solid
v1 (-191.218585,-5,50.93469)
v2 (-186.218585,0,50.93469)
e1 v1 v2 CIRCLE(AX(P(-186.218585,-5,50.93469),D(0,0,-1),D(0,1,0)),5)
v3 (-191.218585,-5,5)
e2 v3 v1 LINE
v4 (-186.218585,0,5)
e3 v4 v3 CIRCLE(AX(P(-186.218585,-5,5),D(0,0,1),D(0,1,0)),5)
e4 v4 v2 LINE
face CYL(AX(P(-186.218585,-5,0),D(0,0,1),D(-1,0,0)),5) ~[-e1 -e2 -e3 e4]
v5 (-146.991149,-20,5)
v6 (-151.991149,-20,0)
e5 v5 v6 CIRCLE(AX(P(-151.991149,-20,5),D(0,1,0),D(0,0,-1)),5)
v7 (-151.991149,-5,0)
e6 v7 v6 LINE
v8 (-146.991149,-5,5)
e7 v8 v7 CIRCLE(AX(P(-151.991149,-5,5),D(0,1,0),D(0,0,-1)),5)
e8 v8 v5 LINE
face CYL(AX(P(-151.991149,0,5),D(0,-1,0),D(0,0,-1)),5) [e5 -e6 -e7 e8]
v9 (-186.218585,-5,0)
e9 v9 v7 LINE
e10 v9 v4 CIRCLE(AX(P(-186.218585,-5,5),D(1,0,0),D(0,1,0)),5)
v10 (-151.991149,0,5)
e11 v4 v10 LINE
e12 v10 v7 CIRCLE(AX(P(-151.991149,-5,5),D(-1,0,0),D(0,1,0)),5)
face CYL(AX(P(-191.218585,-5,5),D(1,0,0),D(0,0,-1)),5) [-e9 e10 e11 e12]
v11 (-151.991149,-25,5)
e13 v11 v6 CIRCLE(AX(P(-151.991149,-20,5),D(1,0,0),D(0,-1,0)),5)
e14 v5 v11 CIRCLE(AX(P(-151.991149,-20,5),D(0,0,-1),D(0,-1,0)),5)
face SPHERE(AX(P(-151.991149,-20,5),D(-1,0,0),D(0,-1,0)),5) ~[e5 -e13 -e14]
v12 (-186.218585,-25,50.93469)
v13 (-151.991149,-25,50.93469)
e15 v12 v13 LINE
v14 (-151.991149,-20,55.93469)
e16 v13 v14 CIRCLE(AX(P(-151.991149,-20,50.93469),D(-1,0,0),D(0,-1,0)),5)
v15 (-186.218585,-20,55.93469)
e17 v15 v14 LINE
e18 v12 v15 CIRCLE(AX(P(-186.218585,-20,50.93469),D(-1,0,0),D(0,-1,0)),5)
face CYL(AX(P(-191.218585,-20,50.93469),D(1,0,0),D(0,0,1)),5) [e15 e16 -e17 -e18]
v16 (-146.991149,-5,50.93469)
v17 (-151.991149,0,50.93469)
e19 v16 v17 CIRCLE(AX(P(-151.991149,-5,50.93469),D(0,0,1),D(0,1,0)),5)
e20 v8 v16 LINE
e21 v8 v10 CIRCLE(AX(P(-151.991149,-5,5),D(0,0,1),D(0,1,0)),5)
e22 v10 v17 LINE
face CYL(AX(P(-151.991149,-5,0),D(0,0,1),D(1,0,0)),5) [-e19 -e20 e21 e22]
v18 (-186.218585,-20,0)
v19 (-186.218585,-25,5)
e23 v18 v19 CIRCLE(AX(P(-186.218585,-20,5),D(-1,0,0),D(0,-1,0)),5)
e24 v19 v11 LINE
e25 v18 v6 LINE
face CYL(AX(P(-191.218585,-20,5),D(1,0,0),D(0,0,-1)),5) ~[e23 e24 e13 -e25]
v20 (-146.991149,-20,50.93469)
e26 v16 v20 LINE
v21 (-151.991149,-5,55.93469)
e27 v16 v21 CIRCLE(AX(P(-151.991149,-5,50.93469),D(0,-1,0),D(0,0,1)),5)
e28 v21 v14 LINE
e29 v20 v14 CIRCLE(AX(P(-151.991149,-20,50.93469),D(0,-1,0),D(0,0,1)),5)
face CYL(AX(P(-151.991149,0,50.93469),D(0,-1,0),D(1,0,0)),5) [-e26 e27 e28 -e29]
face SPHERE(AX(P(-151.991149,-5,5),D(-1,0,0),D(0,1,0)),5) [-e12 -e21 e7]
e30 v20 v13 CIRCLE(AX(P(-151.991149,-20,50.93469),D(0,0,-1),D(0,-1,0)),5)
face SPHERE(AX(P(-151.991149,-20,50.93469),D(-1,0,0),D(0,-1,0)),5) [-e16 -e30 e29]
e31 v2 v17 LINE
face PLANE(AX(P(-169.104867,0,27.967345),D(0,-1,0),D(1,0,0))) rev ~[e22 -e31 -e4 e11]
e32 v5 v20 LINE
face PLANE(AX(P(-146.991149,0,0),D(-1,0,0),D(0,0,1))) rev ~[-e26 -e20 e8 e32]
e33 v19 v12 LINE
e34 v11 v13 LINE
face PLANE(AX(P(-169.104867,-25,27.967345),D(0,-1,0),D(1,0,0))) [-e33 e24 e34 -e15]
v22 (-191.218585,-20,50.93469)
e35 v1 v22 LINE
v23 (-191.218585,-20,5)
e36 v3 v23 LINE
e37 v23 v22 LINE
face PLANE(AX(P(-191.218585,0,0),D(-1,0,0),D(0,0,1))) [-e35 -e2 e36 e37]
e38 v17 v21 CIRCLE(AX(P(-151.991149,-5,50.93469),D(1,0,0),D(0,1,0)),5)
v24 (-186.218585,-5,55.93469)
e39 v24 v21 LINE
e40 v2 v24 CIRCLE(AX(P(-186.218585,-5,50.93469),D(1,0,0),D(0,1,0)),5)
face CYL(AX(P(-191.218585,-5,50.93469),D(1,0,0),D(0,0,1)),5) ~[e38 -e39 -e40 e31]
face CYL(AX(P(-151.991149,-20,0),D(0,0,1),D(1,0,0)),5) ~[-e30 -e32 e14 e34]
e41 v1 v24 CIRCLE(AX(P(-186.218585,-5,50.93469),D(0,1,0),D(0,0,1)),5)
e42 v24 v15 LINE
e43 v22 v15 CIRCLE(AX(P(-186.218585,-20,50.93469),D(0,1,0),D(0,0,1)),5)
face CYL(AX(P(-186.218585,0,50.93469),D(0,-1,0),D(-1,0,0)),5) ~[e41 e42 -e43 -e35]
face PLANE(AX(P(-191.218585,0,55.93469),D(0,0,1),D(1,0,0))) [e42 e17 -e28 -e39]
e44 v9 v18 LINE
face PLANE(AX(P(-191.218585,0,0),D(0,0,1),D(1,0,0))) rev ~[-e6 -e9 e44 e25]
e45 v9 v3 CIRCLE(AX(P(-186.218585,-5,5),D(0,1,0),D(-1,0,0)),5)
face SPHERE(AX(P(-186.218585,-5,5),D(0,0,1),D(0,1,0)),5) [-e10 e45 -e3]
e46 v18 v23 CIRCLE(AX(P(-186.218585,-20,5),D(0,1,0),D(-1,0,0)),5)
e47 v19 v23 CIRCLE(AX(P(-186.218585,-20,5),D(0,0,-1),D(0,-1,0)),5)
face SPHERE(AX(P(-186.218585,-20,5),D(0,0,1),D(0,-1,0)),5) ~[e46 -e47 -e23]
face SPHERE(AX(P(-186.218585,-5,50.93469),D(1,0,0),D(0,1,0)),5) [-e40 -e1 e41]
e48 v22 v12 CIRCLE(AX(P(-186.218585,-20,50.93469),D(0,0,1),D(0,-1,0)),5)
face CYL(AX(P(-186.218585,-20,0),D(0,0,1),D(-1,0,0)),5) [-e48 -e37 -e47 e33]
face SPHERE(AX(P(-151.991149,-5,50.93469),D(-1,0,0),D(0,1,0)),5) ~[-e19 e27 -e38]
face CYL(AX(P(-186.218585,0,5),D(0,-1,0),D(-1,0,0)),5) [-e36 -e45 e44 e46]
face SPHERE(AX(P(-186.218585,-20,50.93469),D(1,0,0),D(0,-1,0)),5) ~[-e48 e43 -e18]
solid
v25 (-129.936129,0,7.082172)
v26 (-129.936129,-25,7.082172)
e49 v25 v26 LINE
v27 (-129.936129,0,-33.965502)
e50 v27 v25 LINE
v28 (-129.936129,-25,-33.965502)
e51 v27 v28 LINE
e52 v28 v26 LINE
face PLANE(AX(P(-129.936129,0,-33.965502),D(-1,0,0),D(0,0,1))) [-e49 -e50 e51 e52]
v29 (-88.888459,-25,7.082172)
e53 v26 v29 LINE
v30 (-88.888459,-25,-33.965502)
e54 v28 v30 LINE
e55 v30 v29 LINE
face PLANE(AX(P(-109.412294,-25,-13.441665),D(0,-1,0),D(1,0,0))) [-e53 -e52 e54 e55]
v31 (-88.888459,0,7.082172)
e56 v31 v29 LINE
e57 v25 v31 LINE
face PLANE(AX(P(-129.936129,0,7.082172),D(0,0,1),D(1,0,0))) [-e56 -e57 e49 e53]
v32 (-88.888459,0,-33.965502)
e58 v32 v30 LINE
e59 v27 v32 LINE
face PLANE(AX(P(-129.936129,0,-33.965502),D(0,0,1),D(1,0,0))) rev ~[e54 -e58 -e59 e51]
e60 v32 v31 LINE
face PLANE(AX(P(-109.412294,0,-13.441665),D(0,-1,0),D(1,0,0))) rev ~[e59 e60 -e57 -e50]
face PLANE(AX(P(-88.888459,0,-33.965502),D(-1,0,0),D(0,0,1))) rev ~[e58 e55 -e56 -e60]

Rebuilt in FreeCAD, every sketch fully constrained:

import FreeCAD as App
import Part
import Sketcher
from FreeCAD import Vector


def edges_at(feature, points):
    """Names of the edges that pass closest to the given points."""
    edges = feature.Shape.Edges
    near = lambda p: min(range(len(edges)), key=lambda i: edges[i].distToShape(Part.Vertex(*p))[0])
    return sorted({f"Edge{near(p) + 1}" for p in points})

doc = App.newDocument("Part")
params = doc.addObject("Spreadsheet::Sheet", "Params")
for row, (alias, value) in enumerate([
    ("pad1_length", "25 mm"),
    ("fillet_radius", "5 mm"),
], start=1):
    params.set(f"A{row}", alias)
    params.set(f"B{row}", "=" + value)
    params.setAlias(f"B{row}", alias)

body = doc.addObject("PartDesign::Body", "Body")
body.AllowCompound = True

# Sketch on XZ plane
sketch1 = doc.addObject("Sketcher::SketchObject", "Sketch")
body.addObject(sketch1)
sketch1.AttachmentSupport = (doc.XZ_Plane, [""])
sketch1.MapMode = "FlatFace"
sketch1.addGeometry(Part.LineSegment(Vector(-191, 56, 0), Vector(-191, 0, 0)), False)
sketch1.addGeometry(Part.LineSegment(Vector(-191, 0, 0), Vector(-147, 0, 0)), False)
sketch1.addGeometry(Part.LineSegment(Vector(-147, 0, 0), Vector(-147, 56, 0)), False)
sketch1.addGeometry(Part.LineSegment(Vector(-147, 56, 0), Vector(-191, 56, 0)), False)
sketch1.addGeometry(Part.LineSegment(Vector(-130, 7, 0), Vector(-130, -34, 0)), False)
sketch1.addGeometry(Part.LineSegment(Vector(-130, -34, 0), Vector(-89, -34, 0)), False)
sketch1.addGeometry(Part.LineSegment(Vector(-89, -34, 0), Vector(-89, 7, 0)), False)
sketch1.addGeometry(Part.LineSegment(Vector(-89, 7, 0), Vector(-130, 7, 0)), False)
sketch1.addConstraint(Sketcher.Constraint("Coincident", 0, 2, 1, 1))
sketch1.addConstraint(Sketcher.Constraint("Coincident", 1, 2, 2, 1))
sketch1.addConstraint(Sketcher.Constraint("Coincident", 2, 2, 3, 1))
sketch1.addConstraint(Sketcher.Constraint("Coincident", 3, 2, 0, 1))
sketch1.addConstraint(Sketcher.Constraint("Coincident", 4, 2, 5, 1))
sketch1.addConstraint(Sketcher.Constraint("Coincident", 5, 2, 6, 1))
sketch1.addConstraint(Sketcher.Constraint("Coincident", 6, 2, 7, 1))
sketch1.addConstraint(Sketcher.Constraint("Coincident", 7, 2, 4, 1))
sketch1.addConstraint(Sketcher.Constraint("Vertical", 0))
sketch1.addConstraint(Sketcher.Constraint("Horizontal", 1))
sketch1.addConstraint(Sketcher.Constraint("Vertical", 2))
sketch1.addConstraint(Sketcher.Constraint("Horizontal", 3))
sketch1.addConstraint(Sketcher.Constraint("Vertical", 4))
sketch1.addConstraint(Sketcher.Constraint("Horizontal", 5))
sketch1.addConstraint(Sketcher.Constraint("Vertical", 6))
sketch1.addConstraint(Sketcher.Constraint("Horizontal", 7))
sketch1.addConstraint(Sketcher.Constraint("PointOnObject", 0, 2, -1))
sketch1.addConstraint(Sketcher.Constraint("DistanceX", 5, 1, 5, 2, 41.04767))
sketch1.addConstraint(Sketcher.Constraint("DistanceY", 0, 2, 0, 1, 55.93469))
sketch1.addConstraint(Sketcher.Constraint("DistanceX", 1, 1, 1, 2, 44.227436))
sketch1.addConstraint(Sketcher.Constraint("DistanceY", 4, 2, 4, 1, 41.047674))
sketch1.addConstraint(Sketcher.Constraint("DistanceX", 1, 2, -1, 1, 146.991149))
sketch1.addConstraint(Sketcher.Constraint("DistanceX", 4, 2, -1, 1, 129.936129))
sketch1.addConstraint(Sketcher.Constraint("DistanceY", 6, 2, 2, 2, 48.852518))
pad1 = doc.addObject("PartDesign::Pad", "Pad")
body.addObject(pad1)
pad1.Profile = sketch1
pad1.setExpression("Length", "Params.pad1_length")
doc.recompute()

fillet = doc.addObject("PartDesign::Fillet", "Fillet")
body.addObject(fillet)
fillet.Base = (pad1, edges_at(pad1, [
    (-169.105, -25, 55.935),
    (-191.219, -25, 27.967),
    (-169.105, -25, 0),
    (-146.991, -25, 27.967),
    (-169.105, 0, 55.935),
    (-191.219, 0, 27.967),
    (-169.105, 0, 0),
    (-146.991, 0, 27.967),
    (-146.991, -12.5, 55.935),
    (-191.219, -12.5, 55.935),
    (-191.219, -12.5, 0),
    (-146.991, -12.5, 0),
]))
fillet.setExpression("Radius", "Params.fillet_radius")

doc.recompute()
